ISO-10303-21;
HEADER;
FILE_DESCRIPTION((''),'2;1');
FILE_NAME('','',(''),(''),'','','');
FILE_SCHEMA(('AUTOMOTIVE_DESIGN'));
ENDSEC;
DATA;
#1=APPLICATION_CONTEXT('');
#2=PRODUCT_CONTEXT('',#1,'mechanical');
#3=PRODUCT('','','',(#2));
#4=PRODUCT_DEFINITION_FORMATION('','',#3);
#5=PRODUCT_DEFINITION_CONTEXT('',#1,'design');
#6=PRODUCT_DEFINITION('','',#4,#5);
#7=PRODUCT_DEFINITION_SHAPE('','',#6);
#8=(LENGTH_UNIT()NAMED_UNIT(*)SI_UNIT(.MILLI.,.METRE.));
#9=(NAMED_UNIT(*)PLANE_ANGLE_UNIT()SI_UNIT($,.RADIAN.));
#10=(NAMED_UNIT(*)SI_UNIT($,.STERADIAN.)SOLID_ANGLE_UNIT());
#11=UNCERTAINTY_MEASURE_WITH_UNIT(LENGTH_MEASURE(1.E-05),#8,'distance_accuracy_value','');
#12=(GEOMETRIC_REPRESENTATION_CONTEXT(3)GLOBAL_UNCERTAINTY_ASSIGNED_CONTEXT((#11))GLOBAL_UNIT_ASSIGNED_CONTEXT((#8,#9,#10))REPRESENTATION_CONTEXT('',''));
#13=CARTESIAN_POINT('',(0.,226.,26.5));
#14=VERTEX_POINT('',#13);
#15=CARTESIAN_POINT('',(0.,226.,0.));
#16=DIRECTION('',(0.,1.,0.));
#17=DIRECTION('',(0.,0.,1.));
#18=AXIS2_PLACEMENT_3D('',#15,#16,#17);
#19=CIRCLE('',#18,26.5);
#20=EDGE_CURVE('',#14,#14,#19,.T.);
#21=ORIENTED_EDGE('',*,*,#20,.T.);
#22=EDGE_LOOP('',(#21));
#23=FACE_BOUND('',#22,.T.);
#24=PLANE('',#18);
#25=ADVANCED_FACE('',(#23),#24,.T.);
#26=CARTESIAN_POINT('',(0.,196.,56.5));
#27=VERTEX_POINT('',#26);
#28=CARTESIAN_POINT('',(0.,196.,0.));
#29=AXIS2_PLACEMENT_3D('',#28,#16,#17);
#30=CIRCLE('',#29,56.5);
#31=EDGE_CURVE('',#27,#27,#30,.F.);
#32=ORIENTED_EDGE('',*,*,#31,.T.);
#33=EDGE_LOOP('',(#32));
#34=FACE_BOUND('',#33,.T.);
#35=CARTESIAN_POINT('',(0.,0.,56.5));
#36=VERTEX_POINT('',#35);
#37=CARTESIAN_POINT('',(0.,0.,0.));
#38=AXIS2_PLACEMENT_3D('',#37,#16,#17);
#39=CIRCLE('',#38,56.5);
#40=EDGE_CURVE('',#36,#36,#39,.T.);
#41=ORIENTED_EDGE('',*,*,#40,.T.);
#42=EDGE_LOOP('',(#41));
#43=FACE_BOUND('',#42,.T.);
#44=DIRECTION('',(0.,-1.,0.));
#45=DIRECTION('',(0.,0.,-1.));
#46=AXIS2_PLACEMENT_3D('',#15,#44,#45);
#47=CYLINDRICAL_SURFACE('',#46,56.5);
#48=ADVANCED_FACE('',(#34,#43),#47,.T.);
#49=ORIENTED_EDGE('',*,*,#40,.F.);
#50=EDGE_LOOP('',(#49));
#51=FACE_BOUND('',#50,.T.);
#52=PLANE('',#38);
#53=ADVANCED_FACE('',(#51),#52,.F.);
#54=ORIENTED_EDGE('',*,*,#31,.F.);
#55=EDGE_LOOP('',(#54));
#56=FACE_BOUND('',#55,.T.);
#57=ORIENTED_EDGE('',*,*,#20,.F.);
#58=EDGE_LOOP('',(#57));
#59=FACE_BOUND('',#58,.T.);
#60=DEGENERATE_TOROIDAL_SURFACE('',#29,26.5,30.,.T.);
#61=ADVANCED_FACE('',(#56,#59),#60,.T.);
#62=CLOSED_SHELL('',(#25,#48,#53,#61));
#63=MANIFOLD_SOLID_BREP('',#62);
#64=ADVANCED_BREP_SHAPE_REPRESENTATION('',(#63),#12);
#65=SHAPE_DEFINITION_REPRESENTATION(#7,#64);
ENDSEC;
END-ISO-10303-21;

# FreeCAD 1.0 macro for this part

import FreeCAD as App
import Part
import Sketcher

V = App.Vector


def edges_at(feature, points):
    """Names of the edges that pass closest to the given points."""
    edges = feature.Shape.Edges
    near = lambda p: min(range(len(edges)), key=lambda i: edges[i].distToShape(Part.Vertex(*p))[0])
    return sorted({f"Edge{near(p) + 1}" for p in points})

doc = App.newDocument("Part")
params = doc.addObject("Spreadsheet::Sheet", "Params")
for row, (alias, value) in enumerate([
    ("sketch1_diameter", "113 mm"),
    ("pad1_length", "226 mm"),
    ("fillet_radius", "30 mm"),
], start=1):
    params.set(f"A{row}", alias)
    params.set(f"B{row}", "=" + value)
    params.setAlias(f"B{row}", alias)

body = doc.addObject("PartDesign::Body", "Body")

# Sketch on XZ plane
sketch1 = doc.addObject("Sketcher::SketchObject", "Sketch")
body.addObject(sketch1)
sketch1.AttachmentSupport = (doc.XZ_Plane, [""])
sketch1.MapMode = "FlatFace"
sketch1.addGeometry(Part.Circle(V(0, 0, 0), V(0, 0, 1), 56), False)
sketch1.addConstraint([
    Sketcher.Constraint("Coincident", 0, 3, -1, 1),
    Sketcher.Constraint("Diameter", 0, 113.0),
])
sketch1.setExpression("Constraints[1]", "Params.sketch1_diameter")
pad1 = doc.addObject("PartDesign::Pad", "Pad")
body.addObject(pad1)
pad1.Profile = sketch1
pad1.setExpression("Length", "Params.pad1_length")
pad1.Reversed = True
doc.recompute()

fillet = doc.addObject("PartDesign::Fillet", "Fillet")
body.addObject(fillet)
fillet.Base = (pad1, edges_at(pad1, [(-56.5, 226, 0)]))
fillet.setExpression("Radius", "Params.fillet_radius")

doc.recompute()
